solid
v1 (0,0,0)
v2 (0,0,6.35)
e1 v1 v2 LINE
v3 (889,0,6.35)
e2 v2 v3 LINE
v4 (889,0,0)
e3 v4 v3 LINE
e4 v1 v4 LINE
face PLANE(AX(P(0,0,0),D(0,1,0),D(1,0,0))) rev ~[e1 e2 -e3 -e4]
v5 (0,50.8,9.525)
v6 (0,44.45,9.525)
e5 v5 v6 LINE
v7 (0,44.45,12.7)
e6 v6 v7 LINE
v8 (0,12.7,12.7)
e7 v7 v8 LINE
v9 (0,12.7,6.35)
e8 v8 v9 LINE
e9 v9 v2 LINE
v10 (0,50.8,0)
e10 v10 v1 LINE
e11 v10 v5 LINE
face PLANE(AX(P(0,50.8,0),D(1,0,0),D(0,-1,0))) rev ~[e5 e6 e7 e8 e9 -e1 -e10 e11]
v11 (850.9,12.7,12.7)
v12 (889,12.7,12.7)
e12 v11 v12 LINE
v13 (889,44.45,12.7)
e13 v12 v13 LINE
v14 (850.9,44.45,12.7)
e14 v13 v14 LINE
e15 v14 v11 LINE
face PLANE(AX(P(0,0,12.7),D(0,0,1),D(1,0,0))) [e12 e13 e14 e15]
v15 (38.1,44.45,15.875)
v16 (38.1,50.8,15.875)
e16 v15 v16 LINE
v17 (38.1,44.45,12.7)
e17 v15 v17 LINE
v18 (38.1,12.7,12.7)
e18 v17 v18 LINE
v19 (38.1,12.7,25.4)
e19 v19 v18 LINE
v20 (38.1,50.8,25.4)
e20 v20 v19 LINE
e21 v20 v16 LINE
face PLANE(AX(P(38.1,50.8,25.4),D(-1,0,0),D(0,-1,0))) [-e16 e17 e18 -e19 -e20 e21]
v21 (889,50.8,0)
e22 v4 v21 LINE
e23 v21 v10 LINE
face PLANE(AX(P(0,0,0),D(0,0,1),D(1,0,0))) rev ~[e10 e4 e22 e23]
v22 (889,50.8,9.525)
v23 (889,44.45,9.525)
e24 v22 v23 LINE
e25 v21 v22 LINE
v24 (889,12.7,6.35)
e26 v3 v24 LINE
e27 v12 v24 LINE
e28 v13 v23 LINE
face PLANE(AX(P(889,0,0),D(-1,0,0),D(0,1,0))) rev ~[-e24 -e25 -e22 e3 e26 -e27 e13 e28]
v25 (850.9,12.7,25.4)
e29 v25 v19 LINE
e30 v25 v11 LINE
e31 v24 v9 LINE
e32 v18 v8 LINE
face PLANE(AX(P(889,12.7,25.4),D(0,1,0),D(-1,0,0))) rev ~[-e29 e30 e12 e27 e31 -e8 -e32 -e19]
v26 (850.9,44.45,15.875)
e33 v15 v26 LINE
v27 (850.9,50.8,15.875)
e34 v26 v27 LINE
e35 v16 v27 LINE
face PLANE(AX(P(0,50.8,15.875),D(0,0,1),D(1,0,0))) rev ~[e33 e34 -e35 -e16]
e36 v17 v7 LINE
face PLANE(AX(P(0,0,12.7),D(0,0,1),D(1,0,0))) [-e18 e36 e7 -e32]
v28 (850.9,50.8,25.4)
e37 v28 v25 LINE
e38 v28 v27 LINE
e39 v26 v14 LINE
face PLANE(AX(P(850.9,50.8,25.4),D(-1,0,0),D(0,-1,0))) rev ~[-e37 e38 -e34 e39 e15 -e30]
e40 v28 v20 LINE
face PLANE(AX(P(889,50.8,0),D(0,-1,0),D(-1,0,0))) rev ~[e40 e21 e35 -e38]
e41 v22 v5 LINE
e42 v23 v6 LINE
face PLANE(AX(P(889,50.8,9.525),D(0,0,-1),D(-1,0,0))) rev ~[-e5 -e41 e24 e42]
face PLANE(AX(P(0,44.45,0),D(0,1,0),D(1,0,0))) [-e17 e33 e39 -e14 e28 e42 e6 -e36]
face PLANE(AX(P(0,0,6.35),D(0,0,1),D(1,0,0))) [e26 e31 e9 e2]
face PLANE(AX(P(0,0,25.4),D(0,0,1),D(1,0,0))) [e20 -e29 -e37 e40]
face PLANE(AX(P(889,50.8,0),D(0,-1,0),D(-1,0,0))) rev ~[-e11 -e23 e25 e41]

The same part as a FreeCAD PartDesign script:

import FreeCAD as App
import Part
import Sketcher

V = App.Vector
Q = App.Units.Quantity

doc = App.newDocument("Part")
body = doc.addObject("PartDesign::Body", "Body")

sketch1 = body.newObject("Sketcher::SketchObject", "Sketch")
sketch1.AttachmentSupport = (doc.getObject("XY_Plane"), [""])
sketch1.MapMode = "FlatFace"
sketch1.addGeometry(Part.LineSegment(V(0, 51, 0), V(0, 0, 0)), False)
sketch1.addGeometry(Part.LineSegment(V(0, 0, 0), V(889, 0, 0)), False)
sketch1.addGeometry(Part.LineSegment(V(889, 0, 0), V(889, 51, 0)), False)
sketch1.addGeometry(Part.LineSegment(V(889, 51, 0), V(0, 51, 0)), False)
sketch1.addConstraint(Sketcher.Constraint("Coincident", 0, 2, 1, 1))
sketch1.addConstraint(Sketcher.Constraint("Coincident", 1, 2, 2, 1))
sketch1.addConstraint(Sketcher.Constraint("Coincident", 2, 2, 3, 1))
sketch1.addConstraint(Sketcher.Constraint("Coincident", 3, 2, 0, 1))
sketch1.addConstraint(Sketcher.Constraint("Vertical", 0))
sketch1.addConstraint(Sketcher.Constraint("Horizontal", 1))
sketch1.addConstraint(Sketcher.Constraint("Vertical", 2))
sketch1.addConstraint(Sketcher.Constraint("Horizontal", 3))
sketch1.addConstraint(Sketcher.Constraint("Coincident", 0, 2, -1, 1))
sketch1.addConstraint(Sketcher.Constraint("DistanceX", 1, 1, 1, 2, Q("35 in")))
sketch1.addConstraint(Sketcher.Constraint("DistanceY", 0, 2, 0, 1, Q("2 in")))
pad1 = body.newObject("PartDesign::Pad", "Pad")
pad1.Profile = sketch1
pad1.Length = Q("1 in")

sketch2 = body.newObject("Sketcher::SketchObject", "Sketch001")
sketch2.AttachmentSupport = (doc.getObject("XY_Plane"), [""])
sketch2.MapMode = "FlatFace"
sketch2.AttachmentOffset = App.Placement(V(0, 0, 1 * 25.4), App.Rotation())
sketch2.addGeometry(Part.LineSegment(V(0, 13, 0), V(0, 0, 0)), False)
sketch2.addGeometry(Part.LineSegment(V(0, 0, 0), V(889, 0, 0)), False)
sketch2.addGeometry(Part.LineSegment(V(889, 0, 0), V(889, 13, 0)), False)
sketch2.addGeometry(Part.LineSegment(V(889, 13, 0), V(0, 13, 0)), False)
sketch2.addConstraint(Sketcher.Constraint("Coincident", 0, 2, 1, 1))
sketch2.addConstraint(Sketcher.Constraint("Coincident", 1, 2, 2, 1))
sketch2.addConstraint(Sketcher.Constraint("Coincident", 2, 2, 3, 1))
sketch2.addConstraint(Sketcher.Constraint("Coincident", 3, 2, 0, 1))
sketch2.addConstraint(Sketcher.Constraint("Vertical", 0))
sketch2.addConstraint(Sketcher.Constraint("Horizontal", 1))
sketch2.addConstraint(Sketcher.Constraint("Vertical", 2))
sketch2.addConstraint(Sketcher.Constraint("Horizontal", 3))
sketch2.addConstraint(Sketcher.Constraint("Coincident", 0, 2, -1, 1))
sketch2.addConstraint(Sketcher.Constraint("DistanceX", 1, 1, 1, 2, Q("35 in")))
sketch2.addConstraint(Sketcher.Constraint("DistanceY", 0, 2, 0, 1, Q("0.5 in")))
pocket1 = body.newObject("PartDesign::Pocket", "Pocket")
pocket1.Profile = sketch2
pocket1.Length = Q("0.75 in")

sketch3 = body.newObject("Sketcher::SketchObject", "Sketch002")
sketch3.AttachmentSupport = (doc.getObject("XY_Plane"), [""])
sketch3.MapMode = "FlatFace"
sketch3.AttachmentOffset = App.Placement(V(0, 0, 1 * 25.4), App.Rotation())
sketch3.addGeometry(Part.LineSegment(V(38, 51, 0), V(0, 51, 0)), False)
sketch3.addGeometry(Part.LineSegment(V(0, 51, 0), V(0, 13, 0)), False)
sketch3.addGeometry(Part.LineSegment(V(0, 13, 0), V(38, 13, 0)), False)
sketch3.addGeometry(Part.LineSegment(V(38, 13, 0), V(38, 51, 0)), False)
sketch3.addConstraint(Sketcher.Constraint("Coincident", 0, 2, 1, 1))
sketch3.addConstraint(Sketcher.Constraint("Coincident", 1, 2, 2, 1))
sketch3.addConstraint(Sketcher.Constraint("Coincident", 2, 2, 3, 1))
sketch3.addConstraint(Sketcher.Constraint("Coincident", 3, 2, 0, 1))
sketch3.addConstraint(Sketcher.Constraint("Horizontal", 0))
sketch3.addConstraint(Sketcher.Constraint("Vertical", 1))
sketch3.addConstraint(Sketcher.Constraint("Horizontal", 2))
sketch3.addConstraint(Sketcher.Constraint("Vertical", 3))
sketch3.addConstraint(Sketcher.Constraint("PointOnObject", 0, 2, -2))
sketch3.addConstraint(Sketcher.Constraint("Equal", 2, 1))
sketch3.addConstraint(Sketcher.Constraint("DistanceX", 0, 2, 0, 1, Q("1.5 in")))
sketch3.addConstraint(Sketcher.Constraint("DistanceY", -1, 1, 0, 2, Q("2 in")))
pocket2 = body.newObject("PartDesign::Pocket", "Pocket001")
pocket2.Profile = sketch3
pocket2.Length = Q("0.5 in")

sketch4 = body.newObject("Sketcher::SketchObject", "Sketch003")
sketch4.AttachmentSupport = (doc.getObject("XY_Plane"), [""])
sketch4.MapMode = "FlatFace"
sketch4.AttachmentOffset = App.Placement(V(0, 0, 1 * 25.4), App.Rotation())
sketch4.addGeometry(Part.LineSegment(V(889, 13, 0), V(889, 51, 0)), False)
sketch4.addGeometry(Part.LineSegment(V(889, 51, 0), V(851, 51, 0)), False)
sketch4.addGeometry(Part.LineSegment(V(851, 51, 0), V(851, 13, 0)), False)
sketch4.addGeometry(Part.LineSegment(V(851, 13, 0), V(889, 13, 0)), False)
sketch4.addConstraint(Sketcher.Constraint("Coincident", 0, 2, 1, 1))
sketch4.addConstraint(Sketcher.Constraint("Coincident", 1, 2, 2, 1))
sketch4.addConstraint(Sketcher.Constraint("Coincident", 2, 2, 3, 1))
sketch4.addConstraint(Sketcher.Constraint("Coincident", 3, 2, 0, 1))
sketch4.addConstraint(Sketcher.Constraint("Vertical", 0))
sketch4.addConstraint(Sketcher.Constraint("Horizontal", 1))
sketch4.addConstraint(Sketcher.Constraint("Vertical", 2))
sketch4.addConstraint(Sketcher.Constraint("Horizontal", 3))
sketch4.addConstraint(Sketcher.Constraint("Equal", 3, 0))
sketch4.addConstraint(Sketcher.Constraint("DistanceX", 1, 2, 1, 1, Q("1.5 in")))
sketch4.addConstraint(Sketcher.Constraint("DistanceX", -1, 1, 0, 2, Q("35 in")))
sketch4.addConstraint(Sketcher.Constraint("DistanceY", -1, 1, 0, 2, Q("2 in")))
pocket3 = body.newObject("PartDesign::Pocket", "Pocket002")
pocket3.Profile = sketch4
pocket3.Length = Q("0.5 in")

sketch5 = body.newObject("Sketcher::SketchObject", "Sketch004")
sketch5.AttachmentSupport = (doc.getObject("XZ_Plane"), [""])
sketch5.MapMode = "FlatFace"
sketch5.AttachmentOffset = App.Placement(V(0, 0, -2 * 25.4), App.Rotation())
sketch5.addGeometry(Part.LineSegment(V(889, 10, 0), V(0, 10, 0)), False)
sketch5.addGeometry(Part.LineSegment(V(0, 10, 0), V(0, 16, 0)), False)
sketch5.addGeometry(Part.LineSegment(V(0, 16, 0), V(889, 16, 0)), False)
sketch5.addGeometry(Part.LineSegment(V(889, 16, 0), V(889, 10, 0)), False)
sketch5.addConstraint(Sketcher.Constraint("Coincident", 0, 2, 1, 1))
sketch5.addConstraint(Sketcher.Constraint("Coincident", 1, 2, 2, 1))
sketch5.addConstraint(Sketcher.Constraint("Coincident", 2, 2, 3, 1))
sketch5.addConstraint(Sketcher.Constraint("Coincident", 3, 2, 0, 1))
sketch5.addConstraint(Sketcher.Constraint("Horizontal", 0))
sketch5.addConstraint(Sketcher.Constraint("Vertical", 1))
sketch5.addConstraint(Sketcher.Constraint("Horizontal", 2))
sketch5.addConstraint(Sketcher.Constraint("Vertical", 3))
sketch5.addConstraint(Sketcher.Constraint("PointOnObject", 0, 2, -2))
sketch5.addConstraint(Sketcher.Constraint("DistanceX", 0, 2, 0, 1, Q("35 in")))
sketch5.addConstraint(Sketcher.Constraint("DistanceY", 1, 1, 1, 2, Q("0.25 in")))
sketch5.addConstraint(Sketcher.Constraint("DistanceY", -1, 1, 0, 2, Q("0.375 in")))
pocket4 = body.newObject("PartDesign::Pocket", "Pocket003")
pocket4.Profile = sketch5
pocket4.Length = Q("0.25 in")
pocket4.Reversed = True

doc.recompute()
